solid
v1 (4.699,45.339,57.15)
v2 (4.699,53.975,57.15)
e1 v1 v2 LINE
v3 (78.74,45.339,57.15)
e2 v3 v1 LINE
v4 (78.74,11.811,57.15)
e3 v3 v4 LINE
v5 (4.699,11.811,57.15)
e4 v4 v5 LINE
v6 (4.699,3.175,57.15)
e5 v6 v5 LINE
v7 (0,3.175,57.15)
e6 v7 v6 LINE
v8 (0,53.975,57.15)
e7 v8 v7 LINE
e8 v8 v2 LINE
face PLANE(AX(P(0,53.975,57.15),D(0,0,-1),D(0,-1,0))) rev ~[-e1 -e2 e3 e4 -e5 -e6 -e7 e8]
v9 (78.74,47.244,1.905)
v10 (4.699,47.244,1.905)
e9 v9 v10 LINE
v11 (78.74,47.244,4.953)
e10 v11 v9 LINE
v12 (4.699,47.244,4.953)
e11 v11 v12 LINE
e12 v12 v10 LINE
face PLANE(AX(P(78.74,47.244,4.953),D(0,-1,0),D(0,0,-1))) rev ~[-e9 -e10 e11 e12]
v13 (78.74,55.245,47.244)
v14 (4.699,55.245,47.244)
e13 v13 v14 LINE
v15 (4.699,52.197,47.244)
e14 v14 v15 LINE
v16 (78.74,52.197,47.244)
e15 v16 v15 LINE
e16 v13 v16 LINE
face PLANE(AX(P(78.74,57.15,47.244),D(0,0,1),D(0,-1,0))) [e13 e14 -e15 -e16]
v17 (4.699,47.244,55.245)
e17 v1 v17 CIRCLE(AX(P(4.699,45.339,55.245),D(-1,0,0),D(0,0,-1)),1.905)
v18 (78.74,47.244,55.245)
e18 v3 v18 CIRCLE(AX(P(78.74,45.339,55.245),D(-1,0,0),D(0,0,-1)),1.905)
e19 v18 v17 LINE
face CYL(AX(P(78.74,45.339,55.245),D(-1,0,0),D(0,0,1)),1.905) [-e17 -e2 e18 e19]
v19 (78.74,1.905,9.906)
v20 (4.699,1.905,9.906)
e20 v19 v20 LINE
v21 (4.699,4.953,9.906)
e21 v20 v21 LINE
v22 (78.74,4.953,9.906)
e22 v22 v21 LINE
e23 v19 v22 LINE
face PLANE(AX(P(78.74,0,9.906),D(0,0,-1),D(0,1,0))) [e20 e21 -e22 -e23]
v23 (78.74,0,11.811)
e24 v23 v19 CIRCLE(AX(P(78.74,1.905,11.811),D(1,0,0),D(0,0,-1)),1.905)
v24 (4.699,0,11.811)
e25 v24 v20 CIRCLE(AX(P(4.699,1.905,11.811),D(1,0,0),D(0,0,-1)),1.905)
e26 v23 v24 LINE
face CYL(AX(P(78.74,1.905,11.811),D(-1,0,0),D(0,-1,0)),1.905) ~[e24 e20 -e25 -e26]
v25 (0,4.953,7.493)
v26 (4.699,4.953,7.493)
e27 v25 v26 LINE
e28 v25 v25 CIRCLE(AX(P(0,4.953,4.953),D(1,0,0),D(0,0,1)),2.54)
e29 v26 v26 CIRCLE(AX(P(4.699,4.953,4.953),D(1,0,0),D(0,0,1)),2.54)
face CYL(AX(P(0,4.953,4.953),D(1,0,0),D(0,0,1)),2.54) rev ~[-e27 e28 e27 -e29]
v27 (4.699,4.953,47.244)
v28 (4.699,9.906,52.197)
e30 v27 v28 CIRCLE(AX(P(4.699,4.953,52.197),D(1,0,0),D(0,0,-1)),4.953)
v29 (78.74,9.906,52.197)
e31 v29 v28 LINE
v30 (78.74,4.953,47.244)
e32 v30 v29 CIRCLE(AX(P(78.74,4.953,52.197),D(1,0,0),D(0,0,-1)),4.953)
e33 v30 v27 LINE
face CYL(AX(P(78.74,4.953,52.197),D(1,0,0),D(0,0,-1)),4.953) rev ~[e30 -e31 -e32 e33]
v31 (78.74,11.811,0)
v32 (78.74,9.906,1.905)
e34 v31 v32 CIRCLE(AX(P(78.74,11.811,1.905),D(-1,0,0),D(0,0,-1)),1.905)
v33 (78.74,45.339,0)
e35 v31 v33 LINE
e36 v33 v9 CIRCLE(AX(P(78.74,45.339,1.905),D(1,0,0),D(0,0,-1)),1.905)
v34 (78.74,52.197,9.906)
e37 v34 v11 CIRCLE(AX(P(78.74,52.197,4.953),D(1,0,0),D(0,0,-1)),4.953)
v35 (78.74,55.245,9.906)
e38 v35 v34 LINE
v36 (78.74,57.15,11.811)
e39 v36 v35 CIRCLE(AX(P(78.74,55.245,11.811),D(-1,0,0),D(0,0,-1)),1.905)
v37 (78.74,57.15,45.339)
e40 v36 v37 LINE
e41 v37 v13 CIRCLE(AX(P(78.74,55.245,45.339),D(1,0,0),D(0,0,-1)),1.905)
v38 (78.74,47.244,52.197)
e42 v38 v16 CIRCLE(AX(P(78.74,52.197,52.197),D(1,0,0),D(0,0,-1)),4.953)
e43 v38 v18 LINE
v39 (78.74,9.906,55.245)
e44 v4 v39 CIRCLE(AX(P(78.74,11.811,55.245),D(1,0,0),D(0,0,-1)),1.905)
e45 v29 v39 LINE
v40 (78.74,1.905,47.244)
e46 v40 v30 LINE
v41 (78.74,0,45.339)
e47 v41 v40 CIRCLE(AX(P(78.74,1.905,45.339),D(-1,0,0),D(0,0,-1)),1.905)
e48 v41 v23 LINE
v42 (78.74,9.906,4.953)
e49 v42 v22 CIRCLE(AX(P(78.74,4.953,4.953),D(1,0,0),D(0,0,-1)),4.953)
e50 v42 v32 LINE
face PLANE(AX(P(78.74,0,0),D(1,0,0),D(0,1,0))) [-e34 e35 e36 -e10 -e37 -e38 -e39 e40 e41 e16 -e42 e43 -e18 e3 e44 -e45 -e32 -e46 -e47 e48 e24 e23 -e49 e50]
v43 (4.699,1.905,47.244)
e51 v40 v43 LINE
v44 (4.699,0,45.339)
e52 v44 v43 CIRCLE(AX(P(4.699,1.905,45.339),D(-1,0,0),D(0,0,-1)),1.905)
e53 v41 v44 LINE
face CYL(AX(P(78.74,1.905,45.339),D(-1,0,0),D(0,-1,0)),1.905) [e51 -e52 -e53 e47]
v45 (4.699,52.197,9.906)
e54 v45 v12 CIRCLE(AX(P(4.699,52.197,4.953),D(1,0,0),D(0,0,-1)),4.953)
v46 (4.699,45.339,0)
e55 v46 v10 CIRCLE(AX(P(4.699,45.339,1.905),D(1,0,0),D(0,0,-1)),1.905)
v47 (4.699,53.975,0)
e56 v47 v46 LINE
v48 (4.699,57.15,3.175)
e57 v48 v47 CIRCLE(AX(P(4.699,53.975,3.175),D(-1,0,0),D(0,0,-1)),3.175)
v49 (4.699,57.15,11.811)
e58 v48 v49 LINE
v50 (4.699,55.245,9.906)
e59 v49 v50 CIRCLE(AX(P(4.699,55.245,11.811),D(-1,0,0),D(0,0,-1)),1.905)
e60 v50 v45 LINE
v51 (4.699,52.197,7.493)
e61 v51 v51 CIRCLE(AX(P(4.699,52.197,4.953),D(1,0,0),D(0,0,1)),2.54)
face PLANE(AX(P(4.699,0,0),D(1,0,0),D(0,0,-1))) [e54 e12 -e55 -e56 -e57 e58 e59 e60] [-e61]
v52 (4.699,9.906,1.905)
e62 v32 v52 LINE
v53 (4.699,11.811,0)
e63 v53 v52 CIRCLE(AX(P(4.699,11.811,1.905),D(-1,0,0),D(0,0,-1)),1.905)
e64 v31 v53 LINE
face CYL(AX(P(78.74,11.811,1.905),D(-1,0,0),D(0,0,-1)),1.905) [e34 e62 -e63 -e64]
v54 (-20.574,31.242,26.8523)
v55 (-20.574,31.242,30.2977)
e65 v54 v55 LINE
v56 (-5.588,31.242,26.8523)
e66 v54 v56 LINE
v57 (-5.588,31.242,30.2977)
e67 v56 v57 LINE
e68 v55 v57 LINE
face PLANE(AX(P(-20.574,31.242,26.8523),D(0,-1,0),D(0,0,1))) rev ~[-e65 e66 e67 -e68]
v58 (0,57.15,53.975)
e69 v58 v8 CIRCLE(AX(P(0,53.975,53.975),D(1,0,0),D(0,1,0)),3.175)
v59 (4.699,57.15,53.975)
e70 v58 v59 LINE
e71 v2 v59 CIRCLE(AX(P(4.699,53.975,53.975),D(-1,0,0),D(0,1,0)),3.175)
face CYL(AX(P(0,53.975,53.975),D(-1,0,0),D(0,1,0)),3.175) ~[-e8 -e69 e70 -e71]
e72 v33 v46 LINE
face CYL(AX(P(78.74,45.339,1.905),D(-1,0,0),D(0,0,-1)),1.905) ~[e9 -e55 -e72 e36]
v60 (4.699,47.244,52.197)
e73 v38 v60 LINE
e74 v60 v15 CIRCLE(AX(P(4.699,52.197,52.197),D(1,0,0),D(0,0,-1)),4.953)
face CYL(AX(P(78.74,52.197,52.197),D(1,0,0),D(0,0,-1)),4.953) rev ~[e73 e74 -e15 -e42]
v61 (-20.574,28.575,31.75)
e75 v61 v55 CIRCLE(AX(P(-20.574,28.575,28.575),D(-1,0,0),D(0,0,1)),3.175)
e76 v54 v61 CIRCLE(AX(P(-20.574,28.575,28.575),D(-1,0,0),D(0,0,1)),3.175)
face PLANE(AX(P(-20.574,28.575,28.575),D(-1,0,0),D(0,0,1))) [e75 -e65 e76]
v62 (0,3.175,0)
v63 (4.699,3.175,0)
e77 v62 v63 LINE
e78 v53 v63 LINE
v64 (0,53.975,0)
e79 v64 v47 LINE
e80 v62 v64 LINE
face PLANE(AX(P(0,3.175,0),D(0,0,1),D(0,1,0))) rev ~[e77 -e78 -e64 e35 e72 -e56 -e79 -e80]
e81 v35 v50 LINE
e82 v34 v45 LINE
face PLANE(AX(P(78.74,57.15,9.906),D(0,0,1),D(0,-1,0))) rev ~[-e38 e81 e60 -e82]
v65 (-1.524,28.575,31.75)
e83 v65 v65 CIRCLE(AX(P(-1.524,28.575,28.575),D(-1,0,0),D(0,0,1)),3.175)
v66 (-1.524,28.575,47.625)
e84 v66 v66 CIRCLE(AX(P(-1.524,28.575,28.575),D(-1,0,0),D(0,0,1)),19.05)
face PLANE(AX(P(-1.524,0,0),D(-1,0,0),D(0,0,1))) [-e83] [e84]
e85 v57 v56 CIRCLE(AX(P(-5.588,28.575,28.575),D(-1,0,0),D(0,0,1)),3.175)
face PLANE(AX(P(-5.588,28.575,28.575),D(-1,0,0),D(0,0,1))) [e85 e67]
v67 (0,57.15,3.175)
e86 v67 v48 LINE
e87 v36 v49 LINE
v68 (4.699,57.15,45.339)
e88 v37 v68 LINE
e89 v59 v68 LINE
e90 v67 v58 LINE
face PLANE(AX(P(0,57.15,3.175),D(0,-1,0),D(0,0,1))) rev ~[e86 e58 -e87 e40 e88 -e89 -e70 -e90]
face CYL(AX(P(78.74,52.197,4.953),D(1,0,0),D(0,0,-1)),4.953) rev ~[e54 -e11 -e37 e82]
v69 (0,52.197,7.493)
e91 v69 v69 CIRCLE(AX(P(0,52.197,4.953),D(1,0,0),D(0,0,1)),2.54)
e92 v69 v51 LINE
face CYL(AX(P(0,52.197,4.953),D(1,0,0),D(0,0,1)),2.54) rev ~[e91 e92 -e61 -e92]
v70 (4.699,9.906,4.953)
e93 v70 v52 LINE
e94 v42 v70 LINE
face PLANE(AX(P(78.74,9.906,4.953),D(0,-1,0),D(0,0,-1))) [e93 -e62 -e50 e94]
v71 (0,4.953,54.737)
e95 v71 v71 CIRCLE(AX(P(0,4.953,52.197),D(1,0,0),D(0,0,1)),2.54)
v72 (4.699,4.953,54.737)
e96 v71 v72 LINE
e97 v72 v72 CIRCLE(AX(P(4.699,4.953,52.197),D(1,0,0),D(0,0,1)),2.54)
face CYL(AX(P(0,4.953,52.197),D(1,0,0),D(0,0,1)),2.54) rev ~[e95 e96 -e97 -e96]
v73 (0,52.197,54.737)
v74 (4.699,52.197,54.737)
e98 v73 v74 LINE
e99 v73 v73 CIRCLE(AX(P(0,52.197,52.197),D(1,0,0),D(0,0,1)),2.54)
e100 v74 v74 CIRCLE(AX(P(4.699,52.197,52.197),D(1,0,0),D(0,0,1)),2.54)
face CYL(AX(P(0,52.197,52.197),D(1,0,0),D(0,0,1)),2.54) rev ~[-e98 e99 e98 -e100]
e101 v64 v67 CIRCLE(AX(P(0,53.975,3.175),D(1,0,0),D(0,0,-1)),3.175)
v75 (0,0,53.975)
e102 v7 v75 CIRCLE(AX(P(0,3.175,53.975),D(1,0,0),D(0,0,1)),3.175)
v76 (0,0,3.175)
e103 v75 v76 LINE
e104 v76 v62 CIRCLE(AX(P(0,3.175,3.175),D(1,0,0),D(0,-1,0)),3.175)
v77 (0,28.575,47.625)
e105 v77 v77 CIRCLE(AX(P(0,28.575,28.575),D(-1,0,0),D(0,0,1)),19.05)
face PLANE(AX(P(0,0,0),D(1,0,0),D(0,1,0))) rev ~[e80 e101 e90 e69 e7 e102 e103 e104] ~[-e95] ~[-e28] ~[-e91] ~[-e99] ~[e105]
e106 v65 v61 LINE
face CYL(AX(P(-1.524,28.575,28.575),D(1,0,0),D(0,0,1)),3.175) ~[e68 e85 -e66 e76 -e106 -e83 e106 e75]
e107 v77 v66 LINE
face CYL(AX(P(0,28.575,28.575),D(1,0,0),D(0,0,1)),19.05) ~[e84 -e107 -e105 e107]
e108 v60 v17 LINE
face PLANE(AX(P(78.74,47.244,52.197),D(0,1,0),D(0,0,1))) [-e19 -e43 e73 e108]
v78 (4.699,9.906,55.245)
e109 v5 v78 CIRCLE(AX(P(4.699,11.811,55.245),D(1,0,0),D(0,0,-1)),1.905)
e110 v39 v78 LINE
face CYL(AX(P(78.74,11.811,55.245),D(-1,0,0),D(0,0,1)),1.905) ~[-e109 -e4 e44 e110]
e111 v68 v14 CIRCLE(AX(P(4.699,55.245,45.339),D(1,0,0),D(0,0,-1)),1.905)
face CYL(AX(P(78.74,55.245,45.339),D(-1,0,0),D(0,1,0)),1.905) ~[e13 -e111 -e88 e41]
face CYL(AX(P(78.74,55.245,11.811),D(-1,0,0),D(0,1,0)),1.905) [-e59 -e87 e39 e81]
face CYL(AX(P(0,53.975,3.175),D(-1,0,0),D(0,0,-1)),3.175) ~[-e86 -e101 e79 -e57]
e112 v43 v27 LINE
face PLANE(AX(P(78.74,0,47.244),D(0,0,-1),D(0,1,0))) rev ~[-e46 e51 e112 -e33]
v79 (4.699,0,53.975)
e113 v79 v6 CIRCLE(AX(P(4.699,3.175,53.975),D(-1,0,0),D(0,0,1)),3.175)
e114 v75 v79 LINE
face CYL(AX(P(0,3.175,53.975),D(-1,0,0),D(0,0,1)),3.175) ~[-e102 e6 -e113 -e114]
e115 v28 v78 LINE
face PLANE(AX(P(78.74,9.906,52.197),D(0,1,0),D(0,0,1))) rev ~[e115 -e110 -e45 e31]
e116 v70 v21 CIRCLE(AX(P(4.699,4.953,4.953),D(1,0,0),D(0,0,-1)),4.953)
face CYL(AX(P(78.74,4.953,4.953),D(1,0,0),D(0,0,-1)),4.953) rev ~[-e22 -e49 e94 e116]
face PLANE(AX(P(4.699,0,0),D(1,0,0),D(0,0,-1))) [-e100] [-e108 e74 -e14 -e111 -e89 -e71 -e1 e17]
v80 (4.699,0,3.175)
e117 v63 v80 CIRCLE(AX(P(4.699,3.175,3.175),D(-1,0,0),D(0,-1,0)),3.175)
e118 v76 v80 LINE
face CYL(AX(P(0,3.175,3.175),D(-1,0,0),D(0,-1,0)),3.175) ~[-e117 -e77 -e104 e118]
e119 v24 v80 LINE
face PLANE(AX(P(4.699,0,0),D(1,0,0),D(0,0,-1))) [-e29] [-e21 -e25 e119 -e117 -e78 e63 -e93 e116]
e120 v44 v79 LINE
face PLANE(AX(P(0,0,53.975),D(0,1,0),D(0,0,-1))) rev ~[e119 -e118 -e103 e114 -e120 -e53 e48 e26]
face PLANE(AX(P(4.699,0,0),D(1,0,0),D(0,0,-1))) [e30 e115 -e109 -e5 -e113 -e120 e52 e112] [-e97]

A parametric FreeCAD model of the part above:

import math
import FreeCAD as App
import Part
import Sketcher

V = App.Vector
Q = App.Units.Quantity


def edges_at(feature, points):
    """Names of the edges that pass closest to the given points."""
    edges = feature.Shape.Edges
    near = lambda p: min(range(len(edges)), key=lambda i: edges[i].distToShape(Part.Vertex(*p))[0])
    return sorted({f"Edge{near(p) + 1}" for p in points})

doc = App.newDocument("Part")
body = doc.addObject("PartDesign::Body", "Body")

sketch1 = body.newObject("Sketcher::SketchObject", "Sketch")
sketch1.AttachmentSupport = (doc.getObject("YZ_Plane"), [""])
sketch1.MapMode = "FlatFace"
sketch1.addGeometry([
    Part.ArcOfCircle(Part.Circle(V(3.2, 3.2, 0), V(0, 0, 1), 3.2), math.radians(180), math.radians(270)),
    Part.LineSegment(V(3.2, 0, 0), V(54, 0, 0)),
    Part.ArcOfCircle(Part.Circle(V(54, 3.2, 0), V(0, 0, 1), 3.2), math.radians(-90), math.radians(0)),
    Part.LineSegment(V(57.1, 3.2, 0), V(57.1, 54, 0)),
    Part.ArcOfCircle(Part.Circle(V(54, 54, 0), V(0, 0, 1), 3.2), math.radians(0), math.radians(90)),
    Part.LineSegment(V(54, 57.1, 0), V(3.2, 57.1, 0)),
    Part.ArcOfCircle(Part.Circle(V(3.2, 54, 0), V(0, 0, 1), 3.2), math.radians(90), math.radians(180)),
    Part.LineSegment(V(0, 54, 0), V(0, 3.2, 0)),
], False)
sketch1.addConstraint([
    Sketcher.Constraint("Tangent", 0, 2, 1, 1),
    Sketcher.Constraint("Tangent", 1, 2, 2, 1),
    Sketcher.Constraint("Tangent", 2, 2, 3, 1),
    Sketcher.Constraint("Tangent", 3, 2, 4, 1),
    Sketcher.Constraint("Tangent", 4, 2, 5, 1),
    Sketcher.Constraint("Tangent", 5, 2, 6, 1),
    Sketcher.Constraint("Tangent", 6, 2, 7, 1),
    Sketcher.Constraint("Tangent", 7, 2, 0, 1),
    Sketcher.Constraint("Horizontal", 1),
    Sketcher.Constraint("Vertical", 3),
    Sketcher.Constraint("Horizontal", 5),
    Sketcher.Constraint("Vertical", 7),
    Sketcher.Constraint("Equal", 0, 2),
    Sketcher.Constraint("Equal", 2, 4),
    Sketcher.Constraint("Equal", 4, 6),
    Sketcher.Constraint("PointOnObject", 0, 2, -1),
    Sketcher.Constraint("PointOnObject", 6, 2, -2),
    Sketcher.Constraint("Equal", 5, 3),
    Sketcher.Constraint("Radius", 0, Q("0.125 in")),
    Sketcher.Constraint("DistanceX", 1, 1, 1, 2, Q("2 in")),
])
pad1 = body.newObject("PartDesign::Pad", "Pad")
pad1.Profile = sketch1
pad1.Length = Q("3.1 in")

sketch2 = body.newObject("Sketcher::SketchObject", "Sketch001")
sketch2.AttachmentSupport = (doc.getObject("YZ_Plane"), [""])
sketch2.MapMode = "FlatFace"
sketch2.addGeometry(Part.Circle(V(29, 29, 0), V(0, 0, 1), 19), False)
sketch2.addConstraint([
    Sketcher.Constraint("Diameter", 0, Q("1.5 in")),
    Sketcher.Constraint("DistanceX", -1, 1, 0, 3, Q("1.125 in")),
    Sketcher.Constraint("DistanceY", -1, 1, 0, 3, Q("1.125 in")),
])
pad2 = body.newObject("PartDesign::Pad", "Pad001")
pad2.Profile = sketch2
pad2.Length = Q("0.06 in")
pad2.Reversed = True

sketch3 = body.newObject("Sketcher::SketchObject", "Sketch002")
sketch3.AttachmentSupport = (doc.getObject("YZ_Plane"), [""])
sketch3.MapMode = "FlatFace"
sketch3.AttachmentOffset = App.Placement(V(0, 0, -0.06 * 25.4), App.Rotation())
sketch3.addGeometry(Part.Circle(V(28.6, 28.6, 0), V(0, 0, 1), 3.2), False)
sketch3.addConstraint([
    Sketcher.Constraint("Diameter", 0, Q("0.25 in")),
    Sketcher.Constraint("DistanceX", -1, 1, 0, 3, Q("1.125 in")),
    Sketcher.Constraint("DistanceY", -1, 1, 0, 3, Q("1.125 in")),
])
pad3 = body.newObject("PartDesign::Pad", "Pad002")
pad3.Profile = sketch3
pad3.Length = Q("0.75 in")
pad3.Reversed = True

sketch4 = body.newObject("Sketcher::SketchObject", "Sketch003")
sketch4.AttachmentSupport = (doc.getObject("YZ_Plane"), [""])
sketch4.MapMode = "FlatFace"
sketch4.AttachmentOffset = App.Placement(V(0, 0, -0.81 * 25.4), App.Rotation())
sketch4.addGeometry([
    Part.LineSegment(V(31.2, 26.9, 0), V(31.2, 30.3, 0)),
    Part.ArcOfCircle(Part.Circle(V(28.6, 28.6, 0), V(0, 0, 1), 3.2), math.radians(-33), math.radians(33)),
], False)
sketch4.addConstraint([
    Sketcher.Constraint("Coincident", 0, 1, 1, 1),
    Sketcher.Constraint("Coincident", 1, 2, 0, 2),
    Sketcher.Constraint("Vertical", 0),
    Sketcher.Constraint("Radius", 1, Q("0.125 in")),
    Sketcher.Constraint("DistanceX", -1, 1, 0, 1, Q("1.23 in")),
    Sketcher.Constraint("DistanceX", -1, 1, 1, 3, Q("1.125 in")),
    Sketcher.Constraint("DistanceY", -1, 1, 1, 3, Q("1.125 in")),
])
pocket1 = body.newObject("PartDesign::Pocket", "Pocket")
pocket1.Profile = sketch4
pocket1.Length = Q("0.59 in")
pocket1.Reversed = True

sketch5 = body.newObject("Sketcher::SketchObject", "Sketch004")
sketch5.AttachmentSupport = (doc.getObject("YZ_Plane"), [""])
sketch5.MapMode = "FlatFace"
sketch5.AttachmentOffset = App.Placement(V(0, 0, 3.1 * 25.4), App.Rotation())
sketch5.addGeometry([
    Part.LineSegment(V(47.2, 57.1, 0), V(47.2, 52.2, 0)),
    Part.ArcOfCircle(Part.Circle(V(52.2, 52.2, 0), V(0, 0, 1), 5), math.radians(180), math.radians(270)),
    Part.LineSegment(V(52.2, 47.2, 0), V(57.1, 47.2, 0)),
    Part.LineSegment(V(57.1, 47.2, 0), V(57.1, 57.1, 0)),
    Part.LineSegment(V(57.1, 57.1, 0), V(47.2, 57.1, 0)),
    Part.LineSegment(V(9.9, 52.2, 0), V(9.9, 57.1, 0)),
    Part.LineSegment(V(9.9, 57.1, 0), V(0, 57.1, 0)),
    Part.LineSegment(V(0, 57.1, 0), V(0, 47.2, 0)),
    Part.LineSegment(V(0, 47.2, 0), V(5, 47.2, 0)),
    Part.ArcOfCircle(Part.Circle(V(5, 52.2, 0), V(0, 0, 1), 5), math.radians(-90), math.radians(0)),
    Part.LineSegment(V(57.1, 9.9, 0), V(52.2, 9.9, 0)),
    Part.ArcOfCircle(Part.Circle(V(52.2, 5, 0), V(0, 0, 1), 5), math.radians(90), math.radians(180)),
    Part.LineSegment(V(47.2, 5, 0), V(47.2, 0, 0)),
    Part.LineSegment(V(47.2, 0, 0), V(57.1, 0, 0)),
    Part.LineSegment(V(57.1, 0, 0), V(57.1, 9.9, 0)),
    Part.LineSegment(V(5, 9.9, 0), V(0, 9.9, 0)),
    Part.LineSegment(V(0, 9.9, 0), V(0, 0, 0)),
    Part.LineSegment(V(0, 0, 0), V(9.9, 0, 0)),
    Part.LineSegment(V(9.9, 0, 0), V(9.9, 5, 0)),
    Part.ArcOfCircle(Part.Circle(V(5, 5, 0), V(0, 0, 1), 5), math.radians(0), math.radians(90)),
], False)
sketch5.addConstraint([
    Sketcher.Constraint("Tangent", 0, 2, 1, 1),
    Sketcher.Constraint("Tangent", 1, 2, 2, 1),
    Sketcher.Constraint("Coincident", 2, 2, 3, 1),
    Sketcher.Constraint("Coincident", 3, 2, 4, 1),
    Sketcher.Constraint("Coincident", 4, 2, 0, 1),
    Sketcher.Constraint("Coincident", 5, 2, 6, 1),
    Sketcher.Constraint("Coincident", 6, 2, 7, 1),
    Sketcher.Constraint("Coincident", 7, 2, 8, 1),
    Sketcher.Constraint("Tangent", 8, 2, 9, 1),
    Sketcher.Constraint("Tangent", 9, 2, 5, 1),
    Sketcher.Constraint("Tangent", 10, 2, 11, 1),
    Sketcher.Constraint("Tangent", 11, 2, 12, 1),
    Sketcher.Constraint("Coincident", 12, 2, 13, 1),
    Sketcher.Constraint("Coincident", 13, 2, 14, 1),
    Sketcher.Constraint("Coincident", 14, 2, 10, 1),
    Sketcher.Constraint("Coincident", 15, 2, 16, 1),
    Sketcher.Constraint("Coincident", 16, 2, 17, 1),
    Sketcher.Constraint("Coincident", 17, 2, 18, 1),
    Sketcher.Constraint("Tangent", 18, 2, 19, 1),
    Sketcher.Constraint("Tangent", 19, 2, 15, 1),
    Sketcher.Constraint("Vertical", 0),
    Sketcher.Constraint("Horizontal", 2),
    Sketcher.Constraint("Vertical", 3),
    Sketcher.Constraint("Horizontal", 4),
    Sketcher.Constraint("Vertical", 5),
    Sketcher.Constraint("Horizontal", 6),
    Sketcher.Constraint("Vertical", 7),
    Sketcher.Constraint("Horizontal", 8),
    Sketcher.Constraint("Horizontal", 10),
    Sketcher.Constraint("Vertical", 12),
    Sketcher.Constraint("Horizontal", 13),
    Sketcher.Constraint("Vertical", 14),
    Sketcher.Constraint("Horizontal", 15),
    Sketcher.Constraint("Vertical", 16),
    Sketcher.Constraint("Horizontal", 17),
    Sketcher.Constraint("Vertical", 18),
    Sketcher.Constraint("Coincident", 16, 2, -1, 1),
    Sketcher.Constraint("Equal", 1, 9),
    Sketcher.Constraint("Equal", 9, 11),
    Sketcher.Constraint("Equal", 11, 19),
    Sketcher.Constraint("PointOnObject", 6, 2, -2),
    Sketcher.Constraint("PointOnObject", 12, 2, -1),
    Sketcher.Constraint("Horizontal", 1, 3, 9, 3),
    Sketcher.Constraint("Horizontal", 11, 3, 19, 3),
    Sketcher.Constraint("Horizontal", 4, 2, 5, 2),
    Sketcher.Constraint("Vertical", 1, 3, 11, 3),
    Sketcher.Constraint("Vertical", 9, 3, 19, 3),
    Sketcher.Constraint("Vertical", 3, 2, 13, 2),
    Sketcher.Constraint("Equal", 4, 6),
    Sketcher.Constraint("Equal", 15, 0),
    Sketcher.Constraint("Equal", 5, 12),
    Sketcher.Constraint("Radius", 1, Q("0.195 in")),
    Sketcher.Constraint("DistanceX", 4, 2, 4, 1, Q("0.39 in")),
    Sketcher.Constraint("DistanceX", -1, 1, 0, 2, Q("1.86 in")),
    Sketcher.Constraint("DistanceY", -1, 1, 1, 2, Q("1.86 in")),
])
pocket2 = body.newObject("PartDesign::Pocket", "Pocket001")
pocket2.Profile = sketch5
pocket2.Length = Q("2.915 in")
doc.recompute()

fillet = body.newObject("PartDesign::Fillet", "Fillet")
fillet.Base = (pocket2, edges_at(pocket2, [
    (41.719, 57.15, 47.244),
    (41.719, 47.244, 57.15),
    (41.719, 57.15, 9.906),
    (41.719, 47.244, 0),
    (41.719, 9.906, 0),
    (41.719, 0, 9.906),
    (41.719, 0, 47.244),
    (41.719, 9.906, 57.15),
]))
fillet.Radius = Q("0.075 in")

sketch6 = body.newObject("Sketcher::SketchObject", "Sketch005")
sketch6.AttachmentSupport = (doc.getObject("YZ_Plane"), [""])
sketch6.MapMode = "FlatFace"
sketch6.addGeometry([
    Part.Circle(V(52.2, 5, 0), V(0, 0, 1), 2.5),
    Part.Circle(V(52.2, 52.2, 0), V(0, 0, 1), 2.5),
    Part.Circle(V(5, 52.2, 0), V(0, 0, 1), 2.5),
    Part.Circle(V(5, 5, 0), V(0, 0, 1), 2.5),
], False)
sketch6.addConstraint([
    Sketcher.Constraint("Equal", 0, 1),
    Sketcher.Constraint("Equal", 1, 2),
    Sketcher.Constraint("Equal", 2, 3),
    Sketcher.Constraint("Horizontal", 1, 3, 2, 3),
    Sketcher.Constraint("Horizontal", 0, 3, 3, 3),
    Sketcher.Constraint("Vertical", 0, 3, 1, 3),
    Sketcher.Constraint("Vertical", 2, 3, 3, 3),
    Sketcher.Constraint("Diameter", 0, Q("0.2 in")),
    Sketcher.Constraint("DistanceY", 0, 3, 1, 3, Q("1.86 in")),
    Sketcher.Constraint("DistanceX", 2, 3, 1, 3, Q("1.86 in")),
    Sketcher.Constraint("DistanceX", -1, 1, 0, 3, Q("2.055 in")),
    Sketcher.Constraint("DistanceY", -1, 1, 0, 3, Q("0.195 in")),
])
doc.recompute()
hole = body.newObject("PartDesign::Hole", "Hole")
hole.Profile = sketch6
hole.ThreadType = "None"
hole.Diameter = Q("0.2 in")
hole.DepthType = "ThroughAll"
hole.Reversed = True

doc.recompute()
